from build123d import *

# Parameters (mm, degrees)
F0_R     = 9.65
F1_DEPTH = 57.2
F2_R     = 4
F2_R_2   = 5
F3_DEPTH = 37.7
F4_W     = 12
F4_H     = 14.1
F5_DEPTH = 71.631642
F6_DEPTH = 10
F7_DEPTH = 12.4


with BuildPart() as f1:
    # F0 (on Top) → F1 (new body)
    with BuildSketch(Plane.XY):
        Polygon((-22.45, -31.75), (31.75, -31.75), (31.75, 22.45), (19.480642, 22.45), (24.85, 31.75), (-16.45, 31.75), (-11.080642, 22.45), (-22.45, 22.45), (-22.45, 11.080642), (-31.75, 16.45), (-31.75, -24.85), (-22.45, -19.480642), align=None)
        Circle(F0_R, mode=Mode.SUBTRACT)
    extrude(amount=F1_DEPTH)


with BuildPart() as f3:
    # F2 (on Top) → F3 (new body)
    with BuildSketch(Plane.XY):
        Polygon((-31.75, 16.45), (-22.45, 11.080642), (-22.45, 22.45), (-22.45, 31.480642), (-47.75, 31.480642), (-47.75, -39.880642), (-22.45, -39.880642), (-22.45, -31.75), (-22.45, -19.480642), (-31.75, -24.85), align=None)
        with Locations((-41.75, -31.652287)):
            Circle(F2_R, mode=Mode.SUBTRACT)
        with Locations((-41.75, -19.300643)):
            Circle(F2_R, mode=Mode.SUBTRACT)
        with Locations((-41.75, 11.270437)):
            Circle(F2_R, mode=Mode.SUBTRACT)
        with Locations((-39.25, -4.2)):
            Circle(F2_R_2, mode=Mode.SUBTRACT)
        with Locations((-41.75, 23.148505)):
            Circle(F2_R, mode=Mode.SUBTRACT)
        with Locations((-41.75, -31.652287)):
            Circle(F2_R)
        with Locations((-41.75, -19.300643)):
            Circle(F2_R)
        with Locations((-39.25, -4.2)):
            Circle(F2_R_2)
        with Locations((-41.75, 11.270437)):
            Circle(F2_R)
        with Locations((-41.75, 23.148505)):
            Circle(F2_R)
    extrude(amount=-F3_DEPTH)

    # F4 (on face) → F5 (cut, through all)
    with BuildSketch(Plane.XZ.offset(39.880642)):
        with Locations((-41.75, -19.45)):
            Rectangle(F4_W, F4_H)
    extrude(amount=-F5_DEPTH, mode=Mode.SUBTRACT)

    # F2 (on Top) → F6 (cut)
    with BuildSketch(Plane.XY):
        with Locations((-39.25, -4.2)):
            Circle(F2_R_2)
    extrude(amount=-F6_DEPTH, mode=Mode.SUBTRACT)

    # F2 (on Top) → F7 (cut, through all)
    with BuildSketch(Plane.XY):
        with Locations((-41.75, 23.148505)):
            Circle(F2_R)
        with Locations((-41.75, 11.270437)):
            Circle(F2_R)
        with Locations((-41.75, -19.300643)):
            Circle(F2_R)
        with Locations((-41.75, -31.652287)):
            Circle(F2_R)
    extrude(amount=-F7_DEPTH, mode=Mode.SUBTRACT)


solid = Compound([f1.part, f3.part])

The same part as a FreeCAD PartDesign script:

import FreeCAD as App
import Part
import Sketcher

V = App.Vector
Q = App.Units.Quantity


def add_polygon(sketch, points):
    """Adds a closed chain of lines whose ends are joined by coincident constraints."""
    first, n = sketch.GeometryCount, len(points)
    for a, b in zip(points, points[1:] + points[:1]):
        sketch.addGeometry(Part.LineSegment(App.Vector(*a, 0), App.Vector(*b, 0)), False)
    for i in range(n):
        sketch.addConstraint(Sketcher.Constraint("Coincident", first + i, 2, first + (i + 1) % n, 1))

doc = App.newDocument("Part")
body = doc.addObject("PartDesign::Body", "Body")

# Sketch on XY plane
sketch1 = body.newObject("Sketcher::SketchObject", "Sketch")
sketch1.AttachmentSupport = (doc.getObject("XY_Plane"), [""])
sketch1.MapMode = "FlatFace"
add_polygon(sketch1, [(-22, -32), (32, -32), (32, 22), (19, 22), (25, 32), (-16, 32), (-11, 22), (-22, 22), (-22, 11), (-32, 16), (-32, -25), (-22, -19)])  # lines 0-11
sketch1.addGeometry(Part.Circle(V(0, 0, 0), V(0, 0, 1), 10), False)  # 12
sketch1.addConstraint([
    Sketcher.Constraint("Horizontal", 0),
    Sketcher.Constraint("Vertical", 1),
    Sketcher.Constraint("Horizontal", 2),
    Sketcher.Constraint("Horizontal", 4),
    Sketcher.Constraint("Horizontal", 6),
    Sketcher.Constraint("Vertical", 7),
    Sketcher.Constraint("Vertical", 9),
    Sketcher.Constraint("Vertical", 11),
    Sketcher.Constraint("Coincident", 12, 3, -1, 1),
    Sketcher.Constraint("Perpendicular", 3, 8),
    Sketcher.Constraint("Perpendicular", 5, 10),
    Sketcher.Constraint("Horizontal", 2, 2, 5, 2),
    Sketcher.Constraint("Vertical", 7, 2, 10, 2),
    Sketcher.Constraint("Equal", 0, 1),
    Sketcher.Constraint("Equal", 6, 7),
    Sketcher.Constraint("Equal", 4, 9),
    Sketcher.Constraint("Equal", 2, 11),
    Sketcher.Constraint("Equal", 3, 5),
    Sketcher.Constraint("Diameter", 12, 19.3),
    Sketcher.Constraint("Angle", 3, Q("59.999998 deg")),
    Sketcher.Constraint("DistanceX", 0, 1, 0, 2, 54.2),
    Sketcher.Constraint("DistanceX", 4, 2, 4, 1, 41.3),
    Sketcher.Constraint("DistanceX", 6, 2, 4, 2, 6.0),
    Sketcher.Constraint("DistanceY", 2, 2, 3, 2, 9.3),
    Sketcher.Constraint("DistanceX", -1, 1, 0, 2, 31.75),
    Sketcher.Constraint("DistanceY", 0, 2, -1, 1, 31.75),
])
pad1 = body.newObject("PartDesign::Pad", "Pad")
pad1.Profile = sketch1
pad1.Length = 57.2
body2 = doc.addObject("PartDesign::Body", "Body001")

# Sketch on XY plane
sketch2 = body2.newObject("Sketcher::SketchObject", "Sketch001")
sketch2.AttachmentSupport = (doc.getObject("XY_Plane001"), [""])
sketch2.MapMode = "FlatFace"
add_polygon(sketch2, [(-32, 16), (-22, 11), (-22, 31), (-48, 31), (-48, -40), (-22, -40), (-22, -19), (-32, -25)])  # lines 0-7
sketch2.addConstraint([
    Sketcher.Constraint("Vertical", 1),
    Sketcher.Constraint("Horizontal", 2),
    Sketcher.Constraint("Vertical", 3),
    Sketcher.Constraint("Horizontal", 4),
    Sketcher.Constraint("Vertical", 5),
    Sketcher.Constraint("Vertical", 7),
    Sketcher.Constraint("Vertical", 1, 2, 4, 2),
    Sketcher.Constraint("Equal", 1, 5),
    Sketcher.Constraint("Equal", 0, 6),
    Sketcher.Constraint("Angle", 0, Q("-30.000002 deg")),
    Sketcher.Constraint("DistanceX", 2, 2, 2, 1, 25.3),
    Sketcher.Constraint("DistanceY", 1, 1, 1, 2, 20.4),
    Sketcher.Constraint("DistanceY", 7, 1, 7, 2, 41.3),
    Sketcher.Constraint("DistanceX", 3, 2, 6, 2, 16.0),
    Sketcher.Constraint("DistanceX", 0, 2, -1, 1, 22.45),
    Sketcher.Constraint("DistanceY", 6, 2, -1, 1, 24.85),
])
pad2 = body2.newObject("PartDesign::Pad", "Pad001")
pad2.Profile = sketch2
pad2.Length = 37.7
pad2.Reversed = True

# Sketch on XZ plane
sketch3 = body2.newObject("Sketcher::SketchObject", "Sketch002")
sketch3.AttachmentSupport = (doc.getObject("XZ_Plane001"), [""])
sketch3.MapMode = "FlatFace"
sketch3.AttachmentOffset = App.Placement(V(0, 0, 39.880642), App.Rotation())
add_polygon(sketch3, [(-48, -12), (-48, -26), (-36, -26), (-36, -12)])  # lines 0-3
sketch3.addConstraint([
    Sketcher.Constraint("Vertical", 0),
    Sketcher.Constraint("Horizontal", 1),
    Sketcher.Constraint("Vertical", 2),
    Sketcher.Constraint("Horizontal", 3),
    Sketcher.Constraint("DistanceX", 1, 1, 1, 2, 12.0),
    Sketcher.Constraint("DistanceY", 0, 2, 0, 1, 14.1),
    Sketcher.Constraint("DistanceY", 0, 2, -1, 1, 26.5),
    Sketcher.Constraint("DistanceX", 0, 2, -1, 1, 47.75),
])
pocket1 = body2.newObject("PartDesign::Pocket", "Pocket")
pocket1.Profile = sketch3
pocket1.Type = "ThroughAll"

# Sketch on XY plane
sketch4 = body2.newObject("Sketcher::SketchObject", "Sketch003")
sketch4.AttachmentSupport = (doc.getObject("XY_Plane001"), [""])
sketch4.MapMode = "FlatFace"
sketch4.addGeometry(Part.Circle(V(-39, -4, 0), V(0, 0, 1), 5), False)
sketch4.addConstraint([
    Sketcher.Constraint("Diameter", 0, 10.0),
    Sketcher.Constraint("DistanceY", 0, 3, -1, 1, 4.2),
    Sketcher.Constraint("DistanceX", 0, 3, -1, 1, 39.25),
])
pocket2 = body2.newObject("PartDesign::Pocket", "Pocket001")
pocket2.Profile = sketch4
pocket2.Length = 10

# Sketch on XY plane
sketch5 = body2.newObject("Sketcher::SketchObject", "Sketch004")
sketch5.AttachmentSupport = (doc.getObject("XY_Plane001"), [""])
sketch5.MapMode = "FlatFace"
sketch5.addGeometry([
    Part.Circle(V(-41.8, 23.1, 0), V(0, 0, 1), 4),
    Part.Circle(V(-41.8, 11.3, 0), V(0, 0, 1), 4),
    Part.Circle(V(-41.8, -19.3, 0), V(0, 0, 1), 4),
    Part.Circle(V(-41.8, -31.7, 0), V(0, 0, 1), 4),
], False)
sketch5.addConstraint([
    Sketcher.Constraint("Equal", 0, 1),
    Sketcher.Constraint("Equal", 1, 2),
    Sketcher.Constraint("Equal", 2, 3),
    Sketcher.Constraint("Vertical", 0, 3, 1, 3),
    Sketcher.Constraint("Vertical", 1, 3, 2, 3),
    Sketcher.Constraint("Vertical", 2, 3, 3, 3),
    Sketcher.Constraint("Diameter", 0, 8.0),
    Sketcher.Constraint("DistanceX", 0, 3, -1, 1, 41.75),
    Sketcher.Constraint("DistanceY", 1, 3, 0, 3, 11.878068),
    Sketcher.Constraint("DistanceY", 2, 3, 1, 3, 30.57108),
    Sketcher.Constraint("DistanceY", -1, 1, 0, 3, 23.148505),
    Sketcher.Constraint("DistanceY", 3, 3, -1, 1, 31.652287),
])
pocket3 = body2.newObject("PartDesign::Pocket", "Pocket002")
pocket3.Profile = sketch5
pocket3.Length = 12.4

doc.recompute()
